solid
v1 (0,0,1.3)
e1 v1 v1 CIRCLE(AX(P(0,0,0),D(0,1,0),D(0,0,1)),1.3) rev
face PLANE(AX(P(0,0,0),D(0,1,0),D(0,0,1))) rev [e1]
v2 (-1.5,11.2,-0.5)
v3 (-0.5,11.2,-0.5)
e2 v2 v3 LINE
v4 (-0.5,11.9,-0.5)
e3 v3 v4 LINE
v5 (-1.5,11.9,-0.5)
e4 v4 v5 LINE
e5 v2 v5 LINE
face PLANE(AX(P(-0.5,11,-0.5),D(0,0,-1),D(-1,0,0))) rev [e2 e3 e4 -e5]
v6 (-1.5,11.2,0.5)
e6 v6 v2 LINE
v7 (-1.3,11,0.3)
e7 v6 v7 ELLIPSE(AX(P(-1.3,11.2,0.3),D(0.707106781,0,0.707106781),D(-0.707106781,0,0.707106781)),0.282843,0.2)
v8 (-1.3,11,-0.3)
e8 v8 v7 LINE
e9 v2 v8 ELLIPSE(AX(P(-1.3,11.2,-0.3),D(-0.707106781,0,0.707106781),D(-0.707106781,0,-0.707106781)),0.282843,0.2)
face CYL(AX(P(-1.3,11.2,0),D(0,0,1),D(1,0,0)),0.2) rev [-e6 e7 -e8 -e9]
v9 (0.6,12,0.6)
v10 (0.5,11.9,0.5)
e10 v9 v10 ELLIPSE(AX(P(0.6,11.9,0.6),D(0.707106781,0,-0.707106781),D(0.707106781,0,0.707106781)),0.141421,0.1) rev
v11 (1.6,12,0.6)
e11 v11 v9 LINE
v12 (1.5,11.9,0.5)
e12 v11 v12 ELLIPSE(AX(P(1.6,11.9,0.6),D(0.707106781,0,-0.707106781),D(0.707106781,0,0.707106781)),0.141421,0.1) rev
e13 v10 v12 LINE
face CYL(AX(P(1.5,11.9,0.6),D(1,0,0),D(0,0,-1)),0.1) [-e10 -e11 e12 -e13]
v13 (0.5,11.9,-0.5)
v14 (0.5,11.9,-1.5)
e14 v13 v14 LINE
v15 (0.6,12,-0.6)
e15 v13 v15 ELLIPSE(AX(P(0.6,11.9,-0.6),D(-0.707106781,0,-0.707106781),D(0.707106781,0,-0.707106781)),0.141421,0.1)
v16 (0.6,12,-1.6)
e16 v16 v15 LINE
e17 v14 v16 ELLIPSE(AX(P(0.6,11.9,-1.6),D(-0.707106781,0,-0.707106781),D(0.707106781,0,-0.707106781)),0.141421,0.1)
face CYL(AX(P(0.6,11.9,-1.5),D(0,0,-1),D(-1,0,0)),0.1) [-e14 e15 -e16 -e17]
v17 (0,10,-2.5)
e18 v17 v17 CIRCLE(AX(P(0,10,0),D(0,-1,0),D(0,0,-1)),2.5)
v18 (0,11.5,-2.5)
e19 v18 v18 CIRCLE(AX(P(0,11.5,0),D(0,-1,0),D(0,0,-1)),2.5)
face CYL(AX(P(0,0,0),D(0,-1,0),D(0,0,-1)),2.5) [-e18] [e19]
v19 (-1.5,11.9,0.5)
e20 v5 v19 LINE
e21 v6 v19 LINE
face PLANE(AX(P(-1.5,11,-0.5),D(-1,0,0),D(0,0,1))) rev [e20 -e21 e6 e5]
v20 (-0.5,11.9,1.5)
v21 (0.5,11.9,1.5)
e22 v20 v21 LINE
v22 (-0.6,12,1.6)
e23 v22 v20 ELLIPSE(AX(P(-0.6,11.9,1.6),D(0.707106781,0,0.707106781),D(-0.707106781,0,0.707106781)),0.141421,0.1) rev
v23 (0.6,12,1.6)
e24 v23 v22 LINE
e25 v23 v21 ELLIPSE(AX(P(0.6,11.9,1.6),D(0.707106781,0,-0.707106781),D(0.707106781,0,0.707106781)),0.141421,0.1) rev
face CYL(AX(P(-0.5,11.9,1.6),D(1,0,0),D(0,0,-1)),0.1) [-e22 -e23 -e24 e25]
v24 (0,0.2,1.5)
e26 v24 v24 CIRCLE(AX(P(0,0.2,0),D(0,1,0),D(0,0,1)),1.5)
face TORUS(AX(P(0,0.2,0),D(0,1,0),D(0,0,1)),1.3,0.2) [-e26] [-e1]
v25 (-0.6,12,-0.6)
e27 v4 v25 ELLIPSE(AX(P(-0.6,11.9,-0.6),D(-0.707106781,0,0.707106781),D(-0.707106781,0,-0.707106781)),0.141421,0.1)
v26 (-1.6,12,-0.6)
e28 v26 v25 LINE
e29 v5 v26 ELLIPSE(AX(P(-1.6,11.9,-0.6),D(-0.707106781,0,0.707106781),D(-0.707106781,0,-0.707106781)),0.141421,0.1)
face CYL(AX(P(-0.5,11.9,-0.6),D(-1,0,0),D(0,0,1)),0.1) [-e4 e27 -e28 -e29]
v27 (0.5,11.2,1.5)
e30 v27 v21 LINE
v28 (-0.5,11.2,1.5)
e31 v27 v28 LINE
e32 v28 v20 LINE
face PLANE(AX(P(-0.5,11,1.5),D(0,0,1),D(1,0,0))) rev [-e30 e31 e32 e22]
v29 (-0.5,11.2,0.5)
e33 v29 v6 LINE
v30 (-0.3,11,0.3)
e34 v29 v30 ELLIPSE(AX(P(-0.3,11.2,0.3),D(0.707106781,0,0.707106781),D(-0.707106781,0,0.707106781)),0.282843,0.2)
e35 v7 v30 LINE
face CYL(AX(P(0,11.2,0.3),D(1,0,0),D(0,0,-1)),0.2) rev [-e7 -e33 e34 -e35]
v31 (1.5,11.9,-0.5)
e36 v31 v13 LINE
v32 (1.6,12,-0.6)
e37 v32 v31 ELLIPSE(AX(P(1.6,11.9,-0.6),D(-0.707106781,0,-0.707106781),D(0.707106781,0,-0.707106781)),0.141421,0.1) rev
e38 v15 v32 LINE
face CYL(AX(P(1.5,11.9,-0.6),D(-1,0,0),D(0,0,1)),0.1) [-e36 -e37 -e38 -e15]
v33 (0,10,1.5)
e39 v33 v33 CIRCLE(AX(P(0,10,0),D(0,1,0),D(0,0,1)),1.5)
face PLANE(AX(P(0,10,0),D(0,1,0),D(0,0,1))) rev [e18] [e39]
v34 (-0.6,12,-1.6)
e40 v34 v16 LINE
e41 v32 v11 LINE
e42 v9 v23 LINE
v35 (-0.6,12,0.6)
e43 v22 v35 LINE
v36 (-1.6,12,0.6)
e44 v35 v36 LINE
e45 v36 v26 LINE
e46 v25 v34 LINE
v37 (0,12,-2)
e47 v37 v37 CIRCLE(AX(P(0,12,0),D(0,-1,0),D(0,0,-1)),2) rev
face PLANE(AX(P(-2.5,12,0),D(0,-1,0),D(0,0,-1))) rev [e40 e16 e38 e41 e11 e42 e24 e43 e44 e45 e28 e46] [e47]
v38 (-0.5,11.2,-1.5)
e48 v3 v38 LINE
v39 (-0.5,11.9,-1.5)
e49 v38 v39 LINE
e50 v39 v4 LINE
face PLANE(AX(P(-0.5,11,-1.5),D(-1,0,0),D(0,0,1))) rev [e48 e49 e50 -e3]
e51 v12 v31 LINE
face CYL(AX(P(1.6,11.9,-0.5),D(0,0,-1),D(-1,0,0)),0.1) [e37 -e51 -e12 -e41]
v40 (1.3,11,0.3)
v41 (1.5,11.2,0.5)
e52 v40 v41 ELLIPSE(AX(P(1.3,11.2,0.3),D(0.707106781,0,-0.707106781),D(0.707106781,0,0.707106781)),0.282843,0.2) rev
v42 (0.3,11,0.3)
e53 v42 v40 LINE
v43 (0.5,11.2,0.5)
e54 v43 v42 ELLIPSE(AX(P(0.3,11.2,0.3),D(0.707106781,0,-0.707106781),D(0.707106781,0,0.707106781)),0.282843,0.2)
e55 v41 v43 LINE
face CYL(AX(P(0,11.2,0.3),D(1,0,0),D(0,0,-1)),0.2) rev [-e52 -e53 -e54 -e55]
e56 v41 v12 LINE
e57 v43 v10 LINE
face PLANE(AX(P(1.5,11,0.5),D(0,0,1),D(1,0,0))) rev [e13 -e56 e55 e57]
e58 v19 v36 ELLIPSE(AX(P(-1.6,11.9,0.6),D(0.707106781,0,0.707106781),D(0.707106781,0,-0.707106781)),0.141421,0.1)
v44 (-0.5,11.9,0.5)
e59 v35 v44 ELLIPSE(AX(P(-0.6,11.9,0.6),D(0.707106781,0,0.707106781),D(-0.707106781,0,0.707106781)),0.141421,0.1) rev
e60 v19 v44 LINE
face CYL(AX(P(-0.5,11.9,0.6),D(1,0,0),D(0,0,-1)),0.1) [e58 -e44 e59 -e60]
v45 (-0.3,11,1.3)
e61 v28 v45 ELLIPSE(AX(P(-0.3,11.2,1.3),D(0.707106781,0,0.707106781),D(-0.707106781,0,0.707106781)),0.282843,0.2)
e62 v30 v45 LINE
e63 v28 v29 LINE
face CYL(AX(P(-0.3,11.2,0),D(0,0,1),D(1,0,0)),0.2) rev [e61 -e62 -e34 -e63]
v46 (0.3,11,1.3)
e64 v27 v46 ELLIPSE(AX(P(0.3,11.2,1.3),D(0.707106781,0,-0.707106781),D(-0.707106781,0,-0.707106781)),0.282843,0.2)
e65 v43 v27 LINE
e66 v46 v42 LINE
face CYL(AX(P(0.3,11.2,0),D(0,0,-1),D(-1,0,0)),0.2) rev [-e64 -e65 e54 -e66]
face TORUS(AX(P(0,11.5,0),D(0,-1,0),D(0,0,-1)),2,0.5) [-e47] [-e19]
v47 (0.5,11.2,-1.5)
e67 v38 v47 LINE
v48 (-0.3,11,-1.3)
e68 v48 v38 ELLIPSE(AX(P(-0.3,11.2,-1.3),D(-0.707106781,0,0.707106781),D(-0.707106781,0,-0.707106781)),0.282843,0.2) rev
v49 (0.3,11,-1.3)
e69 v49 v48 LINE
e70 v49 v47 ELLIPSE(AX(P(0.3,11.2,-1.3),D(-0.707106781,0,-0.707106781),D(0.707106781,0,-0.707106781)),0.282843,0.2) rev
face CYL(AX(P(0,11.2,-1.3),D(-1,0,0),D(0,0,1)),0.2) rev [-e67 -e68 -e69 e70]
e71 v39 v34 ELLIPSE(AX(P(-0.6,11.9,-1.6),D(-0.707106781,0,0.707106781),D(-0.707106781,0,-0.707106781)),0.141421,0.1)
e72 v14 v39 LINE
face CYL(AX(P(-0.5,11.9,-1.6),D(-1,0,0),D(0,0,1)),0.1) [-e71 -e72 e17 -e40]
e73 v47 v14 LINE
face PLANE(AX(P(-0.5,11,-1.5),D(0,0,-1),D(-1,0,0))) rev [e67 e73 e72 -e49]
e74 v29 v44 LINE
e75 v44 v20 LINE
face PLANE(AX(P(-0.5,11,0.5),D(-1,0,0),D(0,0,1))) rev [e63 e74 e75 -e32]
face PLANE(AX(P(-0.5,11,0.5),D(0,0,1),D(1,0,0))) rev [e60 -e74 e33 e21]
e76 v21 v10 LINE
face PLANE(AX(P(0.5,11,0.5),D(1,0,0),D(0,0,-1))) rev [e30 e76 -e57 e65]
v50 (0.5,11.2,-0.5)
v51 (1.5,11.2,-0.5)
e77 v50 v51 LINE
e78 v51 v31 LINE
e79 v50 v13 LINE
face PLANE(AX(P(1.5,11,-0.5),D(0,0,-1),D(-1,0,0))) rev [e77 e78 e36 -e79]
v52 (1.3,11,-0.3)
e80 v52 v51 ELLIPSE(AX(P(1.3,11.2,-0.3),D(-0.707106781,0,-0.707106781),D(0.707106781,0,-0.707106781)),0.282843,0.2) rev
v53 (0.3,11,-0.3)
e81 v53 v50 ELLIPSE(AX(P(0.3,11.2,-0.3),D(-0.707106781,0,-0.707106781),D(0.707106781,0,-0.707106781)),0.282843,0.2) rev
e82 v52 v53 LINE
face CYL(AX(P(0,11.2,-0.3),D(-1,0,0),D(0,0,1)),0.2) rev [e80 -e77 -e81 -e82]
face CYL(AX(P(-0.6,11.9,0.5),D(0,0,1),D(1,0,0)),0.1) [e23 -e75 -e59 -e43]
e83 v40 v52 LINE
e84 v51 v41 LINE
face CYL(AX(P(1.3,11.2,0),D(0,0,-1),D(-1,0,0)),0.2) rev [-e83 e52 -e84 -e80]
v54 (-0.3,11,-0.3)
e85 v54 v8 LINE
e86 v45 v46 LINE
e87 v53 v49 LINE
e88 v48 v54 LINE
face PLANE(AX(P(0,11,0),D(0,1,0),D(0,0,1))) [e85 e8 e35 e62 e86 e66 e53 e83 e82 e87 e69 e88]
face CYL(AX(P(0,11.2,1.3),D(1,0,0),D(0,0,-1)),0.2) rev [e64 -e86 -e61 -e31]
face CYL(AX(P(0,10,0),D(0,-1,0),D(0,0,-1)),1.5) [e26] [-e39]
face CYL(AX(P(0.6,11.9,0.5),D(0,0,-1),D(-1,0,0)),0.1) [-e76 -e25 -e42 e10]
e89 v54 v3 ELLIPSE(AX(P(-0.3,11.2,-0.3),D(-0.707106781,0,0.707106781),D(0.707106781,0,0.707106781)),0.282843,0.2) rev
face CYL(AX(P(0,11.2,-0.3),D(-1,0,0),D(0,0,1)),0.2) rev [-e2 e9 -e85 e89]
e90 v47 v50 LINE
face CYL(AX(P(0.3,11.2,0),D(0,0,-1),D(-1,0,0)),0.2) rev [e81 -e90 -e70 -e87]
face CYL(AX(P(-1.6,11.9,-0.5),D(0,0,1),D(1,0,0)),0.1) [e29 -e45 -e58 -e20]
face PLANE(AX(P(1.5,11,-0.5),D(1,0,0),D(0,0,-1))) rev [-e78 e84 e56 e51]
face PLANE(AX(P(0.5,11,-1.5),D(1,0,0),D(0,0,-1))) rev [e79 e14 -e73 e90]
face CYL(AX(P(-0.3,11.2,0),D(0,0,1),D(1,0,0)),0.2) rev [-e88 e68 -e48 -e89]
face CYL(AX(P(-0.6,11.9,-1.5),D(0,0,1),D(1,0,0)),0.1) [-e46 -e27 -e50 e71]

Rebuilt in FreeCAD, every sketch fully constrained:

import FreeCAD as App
import Part
import Sketcher

V = App.Vector


def edges_at(feature, points):
    """Names of the edges that pass closest to the given points."""
    edges = feature.Shape.Edges
    near = lambda p: min(range(len(edges)), key=lambda i: edges[i].distToShape(Part.Vertex(*p))[0])
    return sorted({f"Edge{near(p) + 1}" for p in points})


def add_polygon(sketch, points):
    """Adds a closed chain of lines whose ends are joined by coincident constraints."""
    first, n = sketch.GeometryCount, len(points)
    for a, b in zip(points, points[1:] + points[:1]):
        sketch.addGeometry(Part.LineSegment(App.Vector(*a, 0), App.Vector(*b, 0)), False)
    for i in range(n):
        sketch.addConstraint(Sketcher.Constraint("Coincident", first + i, 2, first + (i + 1) % n, 1))

doc = App.newDocument("Part")
params = doc.addObject("Spreadsheet::Sheet", "Params")
for row, (alias, value) in enumerate([
    ("sketch1_diameter", "3 mm"),
    ("pad1_length", "10 mm"),
    ("fillet_radius", "0.2 mm"),
    ("sketch2_height", "2 mm"),
    ("sketch2_width", "2.5 mm"),
    ("revolution_angle", "360 deg"),
    ("sketch3_width", "1 mm"),
    ("pocket1_length", "1 mm"),
    ("fillet2_radius", "0.1 mm"),
    ("fillet3_radius", "0.2 mm"),
    ("fillet4_radius", "0.5 mm"),
], start=1):
    params.set(f"A{row}", alias)
    params.set(f"B{row}", "=" + value)
    params.setAlias(f"B{row}", alias)

body = doc.addObject("PartDesign::Body", "Body")

sketch1 = doc.addObject("Sketcher::SketchObject", "Sketch")
body.addObject(sketch1)
sketch1.AttachmentSupport = (doc.XZ_Plane, [""])
sketch1.MapMode = "FlatFace"
sketch1.addGeometry(Part.Circle(V(0, 0, 0), V(0, 0, 1), 1.5), False)
sketch1.addConstraint([
    Sketcher.Constraint("Coincident", 0, 3, -1, 1),
    Sketcher.Constraint("Diameter", 0, 3.0),
])
sketch1.setExpression("Constraints[1]", "Params.sketch1_diameter")
pad1 = doc.addObject("PartDesign::Pad", "Pad")
body.addObject(pad1)
pad1.Profile = sketch1
pad1.setExpression("Length", "Params.pad1_length")
pad1.Reversed = True
doc.recompute()

fillet = doc.addObject("PartDesign::Fillet", "Fillet")
body.addObject(fillet)
fillet.Base = (pad1, edges_at(pad1, [(0, 0, -1.5)]))
fillet.setExpression("Radius", "Params.fillet_radius")

sketch2 = doc.addObject("Sketcher::SketchObject", "Sketch001")
body.addObject(sketch2)
sketch2.AttachmentSupport = (doc.XY_Plane, [""])
sketch2.MapMode = "FlatFace"
add_polygon(sketch2, [(-2.5, 12), (-2.5, 10), (0, 10), (0, 12)])
sketch2.addConstraint([
    Sketcher.Constraint("Vertical", 0),
    Sketcher.Constraint("Horizontal", 1),
    Sketcher.Constraint("Vertical", 2),
    Sketcher.Constraint("Horizontal", 3),
    Sketcher.Constraint("PointOnObject", 1, 2, -2),
    Sketcher.Constraint("DistanceY", 0, 2, 0, 1, 2.0),
    Sketcher.Constraint("DistanceX", 1, 1, 1, 2, 2.5),
    Sketcher.Constraint("DistanceY", -1, 1, 0, 2, 10.0),
])
sketch2.setExpression("Constraints[9]", "Params.sketch2_height")
sketch2.setExpression("Constraints[10]", "Params.sketch2_width")
revolution = doc.addObject("PartDesign::Revolution", "Revolution")
body.addObject(revolution)
revolution.Profile = sketch2
revolution.ReferenceAxis = (sketch2, ["V_Axis"])
revolution.setExpression("Angle", "Params.revolution_angle")

sketch3 = doc.addObject("Sketcher::SketchObject", "Sketch002")
body.addObject(sketch3)
sketch3.AttachmentSupport = (doc.XZ_Plane, [""])
sketch3.MapMode = "FlatFace"
sketch3.AttachmentOffset = App.Placement(V(0, 0, -12), App.Rotation())
add_polygon(sketch3, [(-0.5, -0.5), (-1.5, -0.5), (-1.5, 0.5), (-0.5, 0.5), (-0.5, 1.5), (0.5, 1.5), (0.5, 0.5), (1.5, 0.5), (1.5, -0.5), (0.5, -0.5), (0.5, -1.5), (-0.5, -1.5)])
sketch3.addConstraint([
    Sketcher.Constraint("Horizontal", 0),
    Sketcher.Constraint("Vertical", 1),
    Sketcher.Constraint("Horizontal", 2),
    Sketcher.Constraint("Vertical", 3),
    Sketcher.Constraint("Horizontal", 4),
    Sketcher.Constraint("Vertical", 5),
    Sketcher.Constraint("Horizontal", 6),
    Sketcher.Constraint("Vertical", 7),
    Sketcher.Constraint("Horizontal", 8),
    Sketcher.Constraint("Vertical", 9),
    Sketcher.Constraint("Horizontal", 10),
    Sketcher.Constraint("Vertical", 11),
    Sketcher.Constraint("Symmetric", 0, 2, 6, 2, -1, 1),
    Sketcher.Constraint("Symmetric", 2, 2, 8, 2, -1, 1),
    Sketcher.Constraint("Symmetric", 4, 2, 10, 2, -1, 1),
    Sketcher.Constraint("Symmetric", 2, 2, 5, 2, -2),
    Sketcher.Constraint("Equal", 2, 4),
    Sketcher.Constraint("Equal", 10, 1),
    Sketcher.Constraint("Equal", 1, 3),
    Sketcher.Constraint("DistanceX", 0, 2, 0, 1, 1.0),
])
sketch3.setExpression("Constraints[31]", "Params.sketch3_width")
pocket1 = doc.addObject("PartDesign::Pocket", "Pocket")
body.addObject(pocket1)
pocket1.Profile = sketch3
pocket1.setExpression("Length", "Params.pocket1_length")
pocket1.Reversed = True
doc.recompute()

fillet2 = doc.addObject("PartDesign::Fillet", "Fillet001")
body.addObject(fillet2)
fillet2.Base = (pocket1, edges_at(pocket1, [
    (0.5, 12, 1),
    (1, 12, 0.5),
    (1.5, 12, 0),
    (1, 12, -0.5),
    (0.5, 12, -1),
    (0, 12, -1.5),
    (-0.5, 12, -1),
    (-1, 12, -0.5),
    (-1.5, 12, 0),
    (-1, 12, 0.5),
    (-0.5, 12, 1),
    (0, 12, 1.5),
]))
fillet2.setExpression("Radius", "Params.fillet2_radius")
doc.recompute()

fillet3 = doc.addObject("PartDesign::Fillet", "Fillet002")
body.addObject(fillet3)
fillet3.Base = (fillet2, edges_at(fillet2, [
    (0.5, 11, 1),
    (0, 11, 1.5),
    (-0.5, 11, 1),
    (-1, 11, 0.5),
    (-1.5, 11, 0),
    (-1, 11, -0.5),
    (-0.5, 11, -1),
    (0, 11, -1.5),
    (0.5, 11, -1),
    (1, 11, -0.5),
    (1.5, 11, 0),
    (1, 11, 0.5),
]))
fillet3.setExpression("Radius", "Params.fillet3_radius")
doc.recompute()

fillet4 = doc.addObject("PartDesign::Fillet", "Fillet003")
body.addObject(fillet4)
fillet4.Base = (fillet3, edges_at(fillet3, [(0, 12, 2.5)]))
fillet4.setExpression("Radius", "Params.fillet4_radius")

doc.recompute()
